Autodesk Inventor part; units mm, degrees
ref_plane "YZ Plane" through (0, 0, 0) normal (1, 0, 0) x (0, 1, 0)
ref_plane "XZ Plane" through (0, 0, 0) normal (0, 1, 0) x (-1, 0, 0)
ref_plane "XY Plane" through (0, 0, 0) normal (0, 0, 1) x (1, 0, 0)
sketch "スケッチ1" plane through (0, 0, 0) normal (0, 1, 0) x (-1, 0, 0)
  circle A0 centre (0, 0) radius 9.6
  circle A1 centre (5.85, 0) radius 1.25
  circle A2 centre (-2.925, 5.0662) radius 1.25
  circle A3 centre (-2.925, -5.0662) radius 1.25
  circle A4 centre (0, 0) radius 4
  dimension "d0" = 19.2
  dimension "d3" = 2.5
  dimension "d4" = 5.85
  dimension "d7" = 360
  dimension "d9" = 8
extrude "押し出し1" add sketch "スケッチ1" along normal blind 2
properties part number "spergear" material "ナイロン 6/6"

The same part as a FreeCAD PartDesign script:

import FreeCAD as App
import Part
import Sketcher
from FreeCAD import Vector

doc = App.newDocument("Part")
body = doc.addObject("PartDesign::Body", "Body")

sketch1 = body.newObject("Sketcher::SketchObject", "Sketch")
sketch1.AttachmentSupport = (doc.getObject("XZ_Plane"), [""])
sketch1.MapMode = "FlatFace"
sketch1.addGeometry(Part.Circle(Vector(0, 0, 0), Vector(0, 0, 1), 9.6), False)
sketch1.addGeometry(Part.Circle(Vector(2.9, -5.1, 0), Vector(0, 0, 1), 1.2), False)
sketch1.addGeometry(Part.Circle(Vector(2.9, 5.1, 0), Vector(0, 0, 1), 1.2), False)
sketch1.addGeometry(Part.Circle(Vector(0, 0, 0), Vector(0, 0, 1), 4), False)
sketch1.addGeometry(Part.Circle(Vector(-5.8, 0, 0), Vector(0, 0, 1), 1.2), False)
sketch1.addConstraint(Sketcher.Constraint("Coincident", 0, 3, -1, 1))
sketch1.addConstraint(Sketcher.Constraint("Coincident", 3, 3, -1, 1))
sketch1.addConstraint(Sketcher.Constraint("Equal", 1, 2))
sketch1.addConstraint(Sketcher.Constraint("Equal", 2, 4))
sketch1.addConstraint(Sketcher.Constraint("Symmetric", 1, 3, 2, 3, -1))
sketch1.addConstraint(Sketcher.Constraint("PointOnObject", 4, 3, -1))
sketch1.addConstraint(Sketcher.Constraint("Diameter", 3, 8.0))
sketch1.addConstraint(Sketcher.Constraint("Diameter", 0, 19.2))
sketch1.addConstraint(Sketcher.Constraint("Diameter", 1, 2.5))
sketch1.addConstraint(Sketcher.Constraint("DistanceX", 4, 3, -1, 1, 5.85))
sketch1.addConstraint(Sketcher.Constraint("DistanceX", -1, 1, 1, 3, 2.925))
sketch1.addConstraint(Sketcher.Constraint("DistanceY", 1, 3, -1, 1, 5.0662))
pad1 = body.newObject("PartDesign::Pad", "Pad")
pad1.Profile = sketch1
pad1.Length = 2
pad1.Reversed = True

doc.recompute()
